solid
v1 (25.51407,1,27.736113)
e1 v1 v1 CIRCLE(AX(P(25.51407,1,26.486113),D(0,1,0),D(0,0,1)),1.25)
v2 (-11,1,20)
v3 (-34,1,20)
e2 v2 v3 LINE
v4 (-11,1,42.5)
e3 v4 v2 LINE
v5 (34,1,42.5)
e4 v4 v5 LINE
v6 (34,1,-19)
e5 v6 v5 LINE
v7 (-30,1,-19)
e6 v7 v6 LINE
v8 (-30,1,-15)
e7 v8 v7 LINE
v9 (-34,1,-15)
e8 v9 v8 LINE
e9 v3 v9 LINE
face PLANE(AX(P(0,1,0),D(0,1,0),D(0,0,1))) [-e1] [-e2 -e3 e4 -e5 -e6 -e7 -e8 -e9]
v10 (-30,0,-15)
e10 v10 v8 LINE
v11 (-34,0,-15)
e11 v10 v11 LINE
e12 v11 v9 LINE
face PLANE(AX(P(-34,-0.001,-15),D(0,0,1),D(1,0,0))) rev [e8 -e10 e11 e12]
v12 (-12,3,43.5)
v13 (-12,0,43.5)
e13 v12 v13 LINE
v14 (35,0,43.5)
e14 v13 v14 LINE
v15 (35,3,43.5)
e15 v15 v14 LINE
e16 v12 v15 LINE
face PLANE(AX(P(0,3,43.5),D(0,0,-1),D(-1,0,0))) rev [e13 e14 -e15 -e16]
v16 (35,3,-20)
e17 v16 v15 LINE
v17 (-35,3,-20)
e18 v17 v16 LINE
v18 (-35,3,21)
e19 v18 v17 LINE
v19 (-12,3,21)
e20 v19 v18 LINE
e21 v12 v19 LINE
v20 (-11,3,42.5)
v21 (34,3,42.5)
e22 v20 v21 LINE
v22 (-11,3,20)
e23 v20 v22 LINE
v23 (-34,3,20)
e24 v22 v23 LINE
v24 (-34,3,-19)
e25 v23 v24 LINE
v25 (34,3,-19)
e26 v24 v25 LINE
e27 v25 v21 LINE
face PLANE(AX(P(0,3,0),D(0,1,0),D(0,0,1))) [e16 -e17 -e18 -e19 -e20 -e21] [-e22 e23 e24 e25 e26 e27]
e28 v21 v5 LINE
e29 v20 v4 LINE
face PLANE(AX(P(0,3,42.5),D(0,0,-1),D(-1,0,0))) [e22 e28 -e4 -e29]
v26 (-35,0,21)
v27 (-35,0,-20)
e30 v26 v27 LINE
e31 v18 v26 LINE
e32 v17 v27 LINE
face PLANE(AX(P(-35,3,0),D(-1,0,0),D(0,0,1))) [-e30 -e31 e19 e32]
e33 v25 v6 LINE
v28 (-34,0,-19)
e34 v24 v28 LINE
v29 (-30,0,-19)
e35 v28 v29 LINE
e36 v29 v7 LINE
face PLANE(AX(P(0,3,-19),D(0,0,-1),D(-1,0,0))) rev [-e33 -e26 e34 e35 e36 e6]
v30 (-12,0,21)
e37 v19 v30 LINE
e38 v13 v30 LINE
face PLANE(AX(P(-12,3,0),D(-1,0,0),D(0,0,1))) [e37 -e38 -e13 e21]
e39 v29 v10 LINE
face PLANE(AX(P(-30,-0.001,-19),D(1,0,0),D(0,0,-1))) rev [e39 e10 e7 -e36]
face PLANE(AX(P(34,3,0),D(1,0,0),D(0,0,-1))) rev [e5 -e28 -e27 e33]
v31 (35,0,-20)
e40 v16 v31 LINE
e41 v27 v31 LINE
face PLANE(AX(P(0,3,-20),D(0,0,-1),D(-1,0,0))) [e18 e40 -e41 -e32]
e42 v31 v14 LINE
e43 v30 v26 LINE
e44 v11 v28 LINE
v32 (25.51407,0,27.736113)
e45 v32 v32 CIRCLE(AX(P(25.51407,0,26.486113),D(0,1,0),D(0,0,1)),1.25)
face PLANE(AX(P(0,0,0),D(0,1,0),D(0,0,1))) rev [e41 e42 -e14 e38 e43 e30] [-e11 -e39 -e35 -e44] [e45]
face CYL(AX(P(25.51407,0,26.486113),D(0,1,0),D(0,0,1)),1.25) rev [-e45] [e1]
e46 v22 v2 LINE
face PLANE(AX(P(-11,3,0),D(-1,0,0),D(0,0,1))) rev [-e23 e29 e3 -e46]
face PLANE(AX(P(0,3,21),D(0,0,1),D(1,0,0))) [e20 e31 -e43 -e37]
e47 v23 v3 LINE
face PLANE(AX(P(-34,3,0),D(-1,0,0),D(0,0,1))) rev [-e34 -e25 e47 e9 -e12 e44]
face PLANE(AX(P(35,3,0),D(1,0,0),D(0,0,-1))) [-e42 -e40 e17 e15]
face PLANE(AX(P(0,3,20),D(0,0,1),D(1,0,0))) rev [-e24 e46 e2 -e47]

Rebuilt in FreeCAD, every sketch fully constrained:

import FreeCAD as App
import Part
import Sketcher
from FreeCAD import Vector


def add_polygon(sketch, points):
    """Adds a closed chain of lines whose ends are joined by coincident constraints."""
    first, n = sketch.GeometryCount, len(points)
    for a, b in zip(points, points[1:] + points[:1]):
        sketch.addGeometry(Part.LineSegment(App.Vector(*a, 0), App.Vector(*b, 0)), False)
    for i in range(n):
        sketch.addConstraint(Sketcher.Constraint("Coincident", first + i, 2, first + (i + 1) % n, 1))

doc = App.newDocument("Part")
body = doc.addObject("PartDesign::Body", "Body")

# Sketch on XZ plane
sketch1 = body.newObject("Sketcher::SketchObject", "Sketch")
sketch1.AttachmentSupport = (doc.getObject("XZ_Plane"), [""])
sketch1.MapMode = "FlatFace"
add_polygon(sketch1, [(35, 44), (35, -20), (-35, -20), (-35, 21), (-12, 21), (-12, 44)])  # lines 0-5
sketch1.addConstraint([
    Sketcher.Constraint("Vertical", 0),
    Sketcher.Constraint("Horizontal", 1),
    Sketcher.Constraint("Vertical", 2),
    Sketcher.Constraint("Horizontal", 3),
    Sketcher.Constraint("Vertical", 4),
    Sketcher.Constraint("Horizontal", 5),
    Sketcher.Constraint("DistanceX", 1, 2, 1, 1, 70.0),
    Sketcher.Constraint("DistanceX", 3, 1, 3, 2, 23.0),
    Sketcher.Constraint("DistanceY", 2, 1, 2, 2, 41.0),
    Sketcher.Constraint("DistanceY", 0, 2, 0, 1, 63.5),
    Sketcher.Constraint("DistanceX", -1, 1, 0, 2, 35.0),
    Sketcher.Constraint("DistanceY", 0, 2, -1, 1, 20.0),
])
pad1 = body.newObject("PartDesign::Pad", "Pad")
pad1.Profile = sketch1
pad1.Length = 3
pad1.Reversed = True

# Sketch on XZ plane
sketch2 = body.newObject("Sketcher::SketchObject", "Sketch001")
sketch2.AttachmentSupport = (doc.getObject("XZ_Plane"), [""])
sketch2.MapMode = "FlatFace"
sketch2.AttachmentOffset = App.Placement(Vector(0, 0, -1), App.Rotation())
add_polygon(sketch2, [(34, 42), (34, -19), (-34, -19), (-34, 20), (-11, 20), (-11, 42)])  # lines 0-5
sketch2.addConstraint([
    Sketcher.Constraint("Vertical", 0),
    Sketcher.Constraint("Horizontal", 1),
    Sketcher.Constraint("Vertical", 2),
    Sketcher.Constraint("Horizontal", 3),
    Sketcher.Constraint("Vertical", 4),
    Sketcher.Constraint("Horizontal", 5),
    Sketcher.Constraint("DistanceX", 1, 2, 1, 1, 68.0),
    Sketcher.Constraint("DistanceX", 3, 1, 3, 2, 23.0),
    Sketcher.Constraint("DistanceY", 2, 1, 2, 2, 39.0),
    Sketcher.Constraint("DistanceY", 0, 2, 0, 1, 61.5),
    Sketcher.Constraint("DistanceX", -1, 1, 0, 2, 34.0),
    Sketcher.Constraint("DistanceY", 0, 2, -1, 1, 19.0),
])
pocket1 = body.newObject("PartDesign::Pocket", "Pocket")
pocket1.Profile = sketch2
pocket1.Type = "ThroughAll"

# Sketch on XZ plane
sketch3 = body.newObject("Sketcher::SketchObject", "Sketch002")
sketch3.AttachmentSupport = (doc.getObject("XZ_Plane"), [""])
sketch3.MapMode = "FlatFace"
sketch3.AttachmentOffset = App.Placement(Vector(0, 0, -1), App.Rotation())
sketch3.addGeometry(Part.Circle(Vector(25.5, 26.5, 0), Vector(0, 0, 1), 1.2), False)
sketch3.addConstraint([
    Sketcher.Constraint("Diameter", 0, 2.5),
    Sketcher.Constraint("DistanceX", -1, 1, 0, 3, 25.51407),
    Sketcher.Constraint("DistanceY", -1, 1, 0, 3, 26.486113),
])
pocket2 = body.newObject("PartDesign::Pocket", "Pocket001")
pocket2.Profile = sketch3
pocket2.Type = "ThroughAll"
pocket2.Reversed = True

# Sketch on XZ plane
sketch4 = body.newObject("Sketcher::SketchObject", "Sketch003")
sketch4.AttachmentSupport = (doc.getObject("XZ_Plane"), [""])
sketch4.MapMode = "FlatFace"
sketch4.AttachmentOffset = App.Placement(Vector(0, 0, -1), App.Rotation())
add_polygon(sketch4, [(-34, -19), (-34, -15), (-30, -15), (-30, -19)])  # lines 0-3
sketch4.addConstraint([
    Sketcher.Constraint("Vertical", 0),
    Sketcher.Constraint("Horizontal", 1),
    Sketcher.Constraint("Vertical", 2),
    Sketcher.Constraint("Horizontal", 3),
    Sketcher.Constraint("Equal", 3, 0),
    Sketcher.Constraint("DistanceX", 1, 1, 1, 2, 4.0),
    Sketcher.Constraint("DistanceX", 0, 2, -1, 1, 34.0),
    Sketcher.Constraint("DistanceY", 0, 2, -1, 1, 15.0),
])
pocket3 = body.newObject("PartDesign::Pocket", "Pocket002")
pocket3.Profile = sketch4
pocket3.Type = "UpToFirst"
pocket3.Reversed = True

doc.recompute()
